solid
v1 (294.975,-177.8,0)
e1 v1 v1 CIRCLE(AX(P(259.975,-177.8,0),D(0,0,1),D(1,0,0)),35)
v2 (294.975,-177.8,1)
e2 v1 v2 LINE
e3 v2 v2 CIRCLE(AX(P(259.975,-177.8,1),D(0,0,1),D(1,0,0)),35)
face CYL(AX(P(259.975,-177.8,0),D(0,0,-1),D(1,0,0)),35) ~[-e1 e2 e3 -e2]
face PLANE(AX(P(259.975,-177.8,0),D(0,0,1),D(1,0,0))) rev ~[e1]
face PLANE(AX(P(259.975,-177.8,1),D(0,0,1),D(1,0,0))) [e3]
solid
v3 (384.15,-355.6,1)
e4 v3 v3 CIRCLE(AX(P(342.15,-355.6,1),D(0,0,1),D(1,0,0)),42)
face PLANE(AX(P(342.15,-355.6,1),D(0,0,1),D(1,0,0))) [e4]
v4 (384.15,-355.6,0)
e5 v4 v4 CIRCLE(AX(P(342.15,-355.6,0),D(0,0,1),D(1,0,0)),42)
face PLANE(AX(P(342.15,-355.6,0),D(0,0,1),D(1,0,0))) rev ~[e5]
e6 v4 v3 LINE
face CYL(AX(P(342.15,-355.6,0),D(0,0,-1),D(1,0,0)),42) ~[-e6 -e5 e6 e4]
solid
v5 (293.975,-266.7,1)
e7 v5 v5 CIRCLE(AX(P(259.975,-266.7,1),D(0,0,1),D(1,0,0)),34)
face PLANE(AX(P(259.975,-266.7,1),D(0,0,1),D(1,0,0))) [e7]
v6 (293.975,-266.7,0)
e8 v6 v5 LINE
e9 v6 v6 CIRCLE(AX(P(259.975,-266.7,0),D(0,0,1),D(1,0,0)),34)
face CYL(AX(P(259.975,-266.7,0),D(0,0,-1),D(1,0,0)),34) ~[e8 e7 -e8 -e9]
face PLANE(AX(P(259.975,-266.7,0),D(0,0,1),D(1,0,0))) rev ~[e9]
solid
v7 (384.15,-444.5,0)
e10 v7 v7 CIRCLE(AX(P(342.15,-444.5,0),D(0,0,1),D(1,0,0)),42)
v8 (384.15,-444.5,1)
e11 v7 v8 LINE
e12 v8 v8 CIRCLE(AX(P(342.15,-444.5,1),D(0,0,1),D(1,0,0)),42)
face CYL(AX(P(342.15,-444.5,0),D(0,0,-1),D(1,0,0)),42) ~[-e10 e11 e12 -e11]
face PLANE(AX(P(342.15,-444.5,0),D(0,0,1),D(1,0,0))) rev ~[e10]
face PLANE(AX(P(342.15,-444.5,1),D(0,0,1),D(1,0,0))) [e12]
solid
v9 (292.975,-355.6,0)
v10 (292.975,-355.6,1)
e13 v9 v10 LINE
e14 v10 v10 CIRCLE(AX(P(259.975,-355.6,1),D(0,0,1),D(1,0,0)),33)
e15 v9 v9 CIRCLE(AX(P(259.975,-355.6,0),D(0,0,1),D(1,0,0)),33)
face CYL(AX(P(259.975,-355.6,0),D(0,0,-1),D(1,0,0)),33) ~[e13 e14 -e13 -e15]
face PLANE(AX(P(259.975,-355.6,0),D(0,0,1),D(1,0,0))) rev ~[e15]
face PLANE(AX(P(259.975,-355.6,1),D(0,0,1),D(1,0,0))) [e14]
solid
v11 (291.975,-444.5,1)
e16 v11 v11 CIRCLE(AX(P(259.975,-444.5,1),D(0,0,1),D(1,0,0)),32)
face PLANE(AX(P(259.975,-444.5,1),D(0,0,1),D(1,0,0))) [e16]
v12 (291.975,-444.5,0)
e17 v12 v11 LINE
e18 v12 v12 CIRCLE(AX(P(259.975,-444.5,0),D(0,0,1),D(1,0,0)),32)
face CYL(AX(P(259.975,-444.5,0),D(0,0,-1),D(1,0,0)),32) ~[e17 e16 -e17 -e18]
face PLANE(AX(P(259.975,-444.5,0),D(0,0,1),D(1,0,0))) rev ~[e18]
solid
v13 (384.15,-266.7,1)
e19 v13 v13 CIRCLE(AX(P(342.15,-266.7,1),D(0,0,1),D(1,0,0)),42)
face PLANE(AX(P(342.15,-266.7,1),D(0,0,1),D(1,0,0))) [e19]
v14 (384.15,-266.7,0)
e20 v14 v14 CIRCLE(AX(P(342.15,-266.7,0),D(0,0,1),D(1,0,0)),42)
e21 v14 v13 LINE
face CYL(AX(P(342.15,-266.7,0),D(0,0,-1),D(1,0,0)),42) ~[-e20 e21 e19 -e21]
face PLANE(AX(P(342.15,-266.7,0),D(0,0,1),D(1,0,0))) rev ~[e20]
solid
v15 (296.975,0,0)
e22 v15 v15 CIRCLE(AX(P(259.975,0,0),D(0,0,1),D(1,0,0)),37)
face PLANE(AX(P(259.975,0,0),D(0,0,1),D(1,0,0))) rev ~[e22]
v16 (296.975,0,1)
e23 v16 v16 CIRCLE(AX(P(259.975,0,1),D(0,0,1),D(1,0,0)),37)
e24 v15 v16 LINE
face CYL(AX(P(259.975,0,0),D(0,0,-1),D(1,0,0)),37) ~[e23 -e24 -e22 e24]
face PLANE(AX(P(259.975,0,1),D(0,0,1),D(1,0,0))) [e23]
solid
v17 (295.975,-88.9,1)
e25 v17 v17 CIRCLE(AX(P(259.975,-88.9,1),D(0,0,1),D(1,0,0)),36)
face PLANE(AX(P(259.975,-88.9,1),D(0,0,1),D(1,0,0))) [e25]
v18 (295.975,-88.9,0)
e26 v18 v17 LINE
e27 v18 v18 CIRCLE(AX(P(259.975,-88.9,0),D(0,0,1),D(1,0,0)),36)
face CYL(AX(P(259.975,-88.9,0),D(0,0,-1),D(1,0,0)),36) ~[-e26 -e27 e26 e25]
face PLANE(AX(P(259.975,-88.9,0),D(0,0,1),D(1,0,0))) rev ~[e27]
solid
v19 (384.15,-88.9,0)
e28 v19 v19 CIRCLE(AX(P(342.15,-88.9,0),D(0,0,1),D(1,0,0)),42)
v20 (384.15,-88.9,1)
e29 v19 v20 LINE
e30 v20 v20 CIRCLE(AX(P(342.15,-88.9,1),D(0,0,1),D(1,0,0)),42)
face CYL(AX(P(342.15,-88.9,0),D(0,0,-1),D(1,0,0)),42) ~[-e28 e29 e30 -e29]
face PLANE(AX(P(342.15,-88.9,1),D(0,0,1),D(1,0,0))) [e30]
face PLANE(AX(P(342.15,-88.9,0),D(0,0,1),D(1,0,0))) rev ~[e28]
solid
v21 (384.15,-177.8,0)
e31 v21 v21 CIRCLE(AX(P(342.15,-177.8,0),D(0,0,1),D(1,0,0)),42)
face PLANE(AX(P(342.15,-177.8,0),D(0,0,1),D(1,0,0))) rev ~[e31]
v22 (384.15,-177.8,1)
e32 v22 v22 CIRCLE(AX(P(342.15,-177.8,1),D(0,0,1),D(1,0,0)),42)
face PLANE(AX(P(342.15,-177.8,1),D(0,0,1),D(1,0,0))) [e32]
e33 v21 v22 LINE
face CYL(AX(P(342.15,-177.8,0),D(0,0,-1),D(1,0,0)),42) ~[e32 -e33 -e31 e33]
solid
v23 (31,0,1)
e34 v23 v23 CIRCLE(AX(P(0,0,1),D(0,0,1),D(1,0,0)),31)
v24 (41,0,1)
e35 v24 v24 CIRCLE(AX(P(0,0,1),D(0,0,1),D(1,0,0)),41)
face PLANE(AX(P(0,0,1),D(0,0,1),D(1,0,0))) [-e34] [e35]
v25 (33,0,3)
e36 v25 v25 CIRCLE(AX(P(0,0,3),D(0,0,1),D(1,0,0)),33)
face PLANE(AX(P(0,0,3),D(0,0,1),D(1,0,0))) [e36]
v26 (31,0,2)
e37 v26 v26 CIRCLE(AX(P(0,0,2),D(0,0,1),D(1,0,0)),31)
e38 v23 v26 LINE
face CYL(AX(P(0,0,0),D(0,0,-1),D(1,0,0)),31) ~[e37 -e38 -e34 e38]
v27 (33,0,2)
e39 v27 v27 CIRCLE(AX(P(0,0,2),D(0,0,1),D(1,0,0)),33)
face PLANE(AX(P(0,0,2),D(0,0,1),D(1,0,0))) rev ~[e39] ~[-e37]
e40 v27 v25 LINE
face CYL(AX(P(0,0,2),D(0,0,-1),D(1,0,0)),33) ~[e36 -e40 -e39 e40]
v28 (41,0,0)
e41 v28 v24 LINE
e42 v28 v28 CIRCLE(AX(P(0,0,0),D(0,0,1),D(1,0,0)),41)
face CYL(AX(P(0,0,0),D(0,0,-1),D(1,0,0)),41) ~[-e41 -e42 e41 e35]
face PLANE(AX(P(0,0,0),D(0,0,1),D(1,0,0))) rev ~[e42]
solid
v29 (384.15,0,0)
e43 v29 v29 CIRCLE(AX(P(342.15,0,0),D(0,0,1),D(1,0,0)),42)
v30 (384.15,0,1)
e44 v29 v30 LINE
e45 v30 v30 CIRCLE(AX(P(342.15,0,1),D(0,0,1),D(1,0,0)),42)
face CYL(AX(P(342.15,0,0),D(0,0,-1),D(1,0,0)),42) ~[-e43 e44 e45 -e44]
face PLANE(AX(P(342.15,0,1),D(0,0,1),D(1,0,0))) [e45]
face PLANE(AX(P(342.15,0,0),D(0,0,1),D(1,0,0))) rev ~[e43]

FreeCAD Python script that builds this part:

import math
import FreeCAD as App
import Part
import Sketcher
Q = App.Units.Quantity

doc = App.newDocument("Part")
params = doc.addObject("Spreadsheet::Sheet", "Params")
for row, (alias, value) in enumerate([
    ("sketch1_radius", "42 mm"),
    ("sketch1_radius2", "37 mm"),
    ("sketch1_radius3", "36 mm"),
    ("sketch1_radius4", "35 mm"),
    ("sketch1_radius5", "34 mm"),
    ("pad1_length", "1 mm"),
    ("sketch2_diameter", "74 mm"),
    ("sketch2_diameter2", "84 mm"),
    ("sketch2_diameter3", "72 mm"),
    ("sketch2_diameter4", "70 mm"),
    ("sketch2_diameter5", "68 mm"),
    ("pad2_length", "1 mm"),
    ("sketch3_diameter", "84 mm"),
    ("sketch3_diameter2", "74 mm"),
    ("sketch3_diameter3", "72 mm"),
    ("sketch3_diameter4", "70 mm"),
    ("sketch3_diameter5", "68 mm"),
    ("pad3_length", "1 mm"),
    ("sketch4_diameter", "82 mm"),
    ("sketch4_diameter2", "62 mm"),
    ("pad4_length", "1 mm"),
    ("sketch5_diameter", "62 mm"),
    ("pad5_length", "2 mm"),
    ("sketch6_diameter", "66 mm"),
    ("pad6_length", "1 mm"),
], start=1):
    params.set(f"A{row}", alias)
    params.set(f"B{row}", "=" + value)
    params.setAlias(f"B{row}", alias)

body = doc.addObject("PartDesign::Body", "Body")
body.AllowCompound = True

# Sketch on XY plane
sketch1 = body.newObject("Sketcher::SketchObject", "Sketch")
sketch1.AttachmentSupport = (doc.getObject("XY_Plane"), [""])
sketch1.MapMode = "FlatFace"
sketch1.addGeometry(Part.LineSegment(App.Vector(2, -37, 0), App.Vector(2, -42, 0)), False)
sketch1.addGeometry(Part.ArcOfCircle(Part.Circle(App.Vector(0, 0, 0), App.Vector(0, 0, 1), 42), math.radians(-87), math.radians(267)), False)
sketch1.addGeometry(Part.LineSegment(App.Vector(-2, -42, 0), App.Vector(-2, -37, 0)), False)
sketch1.addGeometry(Part.ArcOfCircle(Part.Circle(App.Vector(0, 0, 0), App.Vector(0, 0, 1), 37), math.radians(-86), math.radians(266)), False)
sketch1.addGeometry(Part.LineSegment(App.Vector(92, -37, 0), App.Vector(92, -42, 0)), False)
sketch1.addGeometry(Part.ArcOfCircle(Part.Circle(App.Vector(89, 0, 0), App.Vector(0, 0, 1), 42), math.radians(-85), math.radians(265)), False)
sketch1.addGeometry(Part.LineSegment(App.Vector(85, -42, 0), App.Vector(85, -37, 0)), False)
sketch1.addGeometry(Part.ArcOfCircle(Part.Circle(App.Vector(89, 0, 0), App.Vector(0, 0, 1), 37), math.radians(-85), math.radians(265)), False)
sketch1.addGeometry(Part.LineSegment(App.Vector(182, -37, 0), App.Vector(182, -42, 0)), False)
sketch1.addGeometry(Part.ArcOfCircle(Part.Circle(App.Vector(178, 0, 0), App.Vector(0, 0, 1), 42), math.radians(-84), math.radians(264)), False)
sketch1.addGeometry(Part.LineSegment(App.Vector(173, -42, 0), App.Vector(173, -37, 0)), False)
sketch1.addGeometry(Part.ArcOfCircle(Part.Circle(App.Vector(178, 0, 0), App.Vector(0, 0, 1), 37), math.radians(-83), math.radians(263)), False)
sketch1.addGeometry(Part.LineSegment(App.Vector(92, -125, 0), App.Vector(92, -131, 0)), False)
sketch1.addGeometry(Part.ArcOfCircle(Part.Circle(App.Vector(89, -89, 0), App.Vector(0, 0, 1), 42), math.radians(-85), math.radians(265)), False)
sketch1.addGeometry(Part.LineSegment(App.Vector(85, -131, 0), App.Vector(85, -125, 0)), False)
sketch1.addGeometry(Part.ArcOfCircle(Part.Circle(App.Vector(89, -89, 0), App.Vector(0, 0, 1), 36), math.radians(-84), math.radians(264)), False)
sketch1.addGeometry(Part.LineSegment(App.Vector(182, -125, 0), App.Vector(182, -131, 0)), False)
sketch1.addGeometry(Part.ArcOfCircle(Part.Circle(App.Vector(178, -89, 0), App.Vector(0, 0, 1), 42), math.radians(-84), math.radians(264)), False)
sketch1.addGeometry(Part.LineSegment(App.Vector(173, -131, 0), App.Vector(173, -125, 0)), False)
sketch1.addGeometry(Part.ArcOfCircle(Part.Circle(App.Vector(178, -89, 0), App.Vector(0, 0, 1), 36), math.radians(-83), math.radians(263)), False)
sketch1.addGeometry(Part.LineSegment(App.Vector(2, -125, 0), App.Vector(2, -131, 0)), False)
sketch1.addGeometry(Part.ArcOfCircle(Part.Circle(App.Vector(0, -89, 0), App.Vector(0, 0, 1), 42), math.radians(-87), math.radians(267)), False)
sketch1.addGeometry(Part.LineSegment(App.Vector(-2, -131, 0), App.Vector(-2, -125, 0)), False)
sketch1.addGeometry(Part.ArcOfCircle(Part.Circle(App.Vector(0, -89, 0), App.Vector(0, 0, 1), 36), math.radians(-86), math.radians(266)), False)
sketch1.addGeometry(Part.LineSegment(App.Vector(92, -213, 0), App.Vector(92, -220, 0)), False)
sketch1.addGeometry(Part.ArcOfCircle(Part.Circle(App.Vector(89, -178, 0), App.Vector(0, 0, 1), 42), math.radians(-85), math.radians(265)), False)
sketch1.addGeometry(Part.LineSegment(App.Vector(85, -220, 0), App.Vector(85, -213, 0)), False)
sketch1.addGeometry(Part.ArcOfCircle(Part.Circle(App.Vector(89, -178, 0), App.Vector(0, 0, 1), 35), math.radians(-84), math.radians(264)), False)
sketch1.addGeometry(Part.LineSegment(App.Vector(182, -213, 0), App.Vector(182, -220, 0)), False)
sketch1.addGeometry(Part.ArcOfCircle(Part.Circle(App.Vector(178, -178, 0), App.Vector(0, 0, 1), 42), math.radians(-84), math.radians(264)), False)
sketch1.addGeometry(Part.LineSegment(App.Vector(173, -220, 0), App.Vector(173, -213, 0)), False)
sketch1.addGeometry(Part.ArcOfCircle(Part.Circle(App.Vector(178, -178, 0), App.Vector(0, 0, 1), 35), math.radians(-83), math.radians(263)), False)
sketch1.addGeometry(Part.LineSegment(App.Vector(2, -213, 0), App.Vector(2, -220, 0)), False)
sketch1.addGeometry(Part.ArcOfCircle(Part.Circle(App.Vector(0, -178, 0), App.Vector(0, 0, 1), 42), math.radians(-87), math.radians(267)), False)
sketch1.addGeometry(Part.LineSegment(App.Vector(-2, -220, 0), App.Vector(-2, -213, 0)), False)
sketch1.addGeometry(Part.ArcOfCircle(Part.Circle(App.Vector(0, -178, 0), App.Vector(0, 0, 1), 35), math.radians(-86), math.radians(266)), False)
sketch1.addGeometry(Part.LineSegment(App.Vector(92, -301, 0), App.Vector(92, -309, 0)), False)
sketch1.addGeometry(Part.ArcOfCircle(Part.Circle(App.Vector(89, -267, 0), App.Vector(0, 0, 1), 42), math.radians(-85), math.radians(265)), False)
sketch1.addGeometry(Part.LineSegment(App.Vector(85, -309, 0), App.Vector(85, -301, 0)), False)
sketch1.addGeometry(Part.ArcOfCircle(Part.Circle(App.Vector(89, -267, 0), App.Vector(0, 0, 1), 34), math.radians(-84), math.radians(264)), False)
sketch1.addGeometry(Part.LineSegment(App.Vector(182, -300, 0), App.Vector(182, -308, 0)), False)
sketch1.addGeometry(Part.ArcOfCircle(Part.Circle(App.Vector(178, -267, 0), App.Vector(0, 0, 1), 42), math.radians(-84), math.radians(264)), False)
sketch1.addGeometry(Part.LineSegment(App.Vector(173, -308, 0), App.Vector(173, -300, 0)), False)
sketch1.addGeometry(Part.ArcOfCircle(Part.Circle(App.Vector(178, -267, 0), App.Vector(0, 0, 1), 34), math.radians(-82), math.radians(262)), False)
sketch1.addGeometry(Part.LineSegment(App.Vector(2, -301, 0), App.Vector(2, -309, 0)), False)
sketch1.addGeometry(Part.ArcOfCircle(Part.Circle(App.Vector(0, -267, 0), App.Vector(0, 0, 1), 42), math.radians(-87), math.radians(267)), False)
sketch1.addGeometry(Part.LineSegment(App.Vector(-2, -309, 0), App.Vector(-2, -301, 0)), False)
sketch1.addGeometry(Part.ArcOfCircle(Part.Circle(App.Vector(0, -267, 0), App.Vector(0, 0, 1), 34), math.radians(-86), math.radians(266)), False)
sketch1.addGeometry(Part.LineSegment(App.Vector(92, -388, 0), App.Vector(92, -397, 0)), False)
sketch1.addGeometry(Part.ArcOfCircle(Part.Circle(App.Vector(89, -356, 0), App.Vector(0, 0, 1), 42), math.radians(-85), math.radians(265)), False)
sketch1.addGeometry(Part.LineSegment(App.Vector(85, -397, 0), App.Vector(85, -388, 0)), False)
sketch1.addGeometry(Part.ArcOfCircle(Part.Circle(App.Vector(89, -356, 0), App.Vector(0, 0, 1), 33), math.radians(-84), math.radians(264)), False)
sketch1.addGeometry(Part.LineSegment(App.Vector(182, -388, 0), App.Vector(182, -397, 0)), False)
sketch1.addGeometry(Part.ArcOfCircle(Part.Circle(App.Vector(178, -356, 0), App.Vector(0, 0, 1), 42), math.radians(-84), math.radians(264)), False)
sketch1.addGeometry(Part.LineSegment(App.Vector(173, -397, 0), App.Vector(173, -388, 0)), False)
sketch1.addGeometry(Part.ArcOfCircle(Part.Circle(App.Vector(178, -356, 0), App.Vector(0, 0, 1), 33), math.radians(-82), math.radians(262)), False)
sketch1.addGeometry(Part.LineSegment(App.Vector(2, -389, 0), App.Vector(2, -398, 0)), False)
sketch1.addGeometry(Part.ArcOfCircle(Part.Circle(App.Vector(0, -356, 0), App.Vector(0, 0, 1), 42), math.radians(-87), math.radians(267)), False)
sketch1.addGeometry(Part.LineSegment(App.Vector(-2, -398, 0), App.Vector(-2, -389, 0)), False)
sketch1.addGeometry(Part.ArcOfCircle(Part.Circle(App.Vector(0, -356, 0), App.Vector(0, 0, 1), 33), math.radians(-86), math.radians(266)), False)
sketch1.addGeometry(Part.LineSegment(App.Vector(92, -476, 0), App.Vector(92, -486, 0)), False)
sketch1.addGeometry(Part.ArcOfCircle(Part.Circle(App.Vector(89, -445, 0), App.Vector(0, 0, 1), 42), math.radians(-85), math.radians(265)), False)
sketch1.addGeometry(Part.LineSegment(App.Vector(85, -486, 0), App.Vector(85, -476, 0)), False)
sketch1.addGeometry(Part.ArcOfCircle(Part.Circle(App.Vector(89, -445, 0), App.Vector(0, 0, 1), 32), math.radians(-84), math.radians(264)), False)
sketch1.addGeometry(Part.LineSegment(App.Vector(182, -476, 0), App.Vector(182, -486, 0)), False)
sketch1.addGeometry(Part.ArcOfCircle(Part.Circle(App.Vector(178, -445, 0), App.Vector(0, 0, 1), 42), math.radians(-84), math.radians(264)), False)
sketch1.addGeometry(Part.LineSegment(App.Vector(173, -486, 0), App.Vector(173, -476, 0)), False)
sketch1.addGeometry(Part.ArcOfCircle(Part.Circle(App.Vector(178, -445, 0), App.Vector(0, 0, 1), 32), math.radians(-82), math.radians(262)), False)
sketch1.addGeometry(Part.LineSegment(App.Vector(2, -476, 0), App.Vector(2, -486, 0)), False)
sketch1.addGeometry(Part.ArcOfCircle(Part.Circle(App.Vector(0, -444, 0), App.Vector(0, 0, 1), 42), math.radians(-87), math.radians(267)), False)
sketch1.addGeometry(Part.LineSegment(App.Vector(-2, -486, 0), App.Vector(-2, -476, 0)), False)
sketch1.addGeometry(Part.ArcOfCircle(Part.Circle(App.Vector(0, -444, 0), App.Vector(0, 0, 1), 32), math.radians(-86), math.radians(266)), False)
sketch1.addConstraint(Sketcher.Constraint("Coincident", 0, 2, 1, 1))
sketch1.addConstraint(Sketcher.Constraint("Coincident", 1, 2, 2, 1))
sketch1.addConstraint(Sketcher.Constraint("Coincident", 2, 2, 3, 2))
sketch1.addConstraint(Sketcher.Constraint("Coincident", 3, 1, 0, 1))
sketch1.addConstraint(Sketcher.Constraint("Coincident", 4, 2, 5, 1))
sketch1.addConstraint(Sketcher.Constraint("Coincident", 5, 2, 6, 1))
sketch1.addConstraint(Sketcher.Constraint("Coincident", 6, 2, 7, 2))
sketch1.addConstraint(Sketcher.Constraint("Coincident", 7, 1, 4, 1))
sketch1.addConstraint(Sketcher.Constraint("Coincident", 8, 2, 9, 1))
sketch1.addConstraint(Sketcher.Constraint("Coincident", 9, 2, 10, 1))
sketch1.addConstraint(Sketcher.Constraint("Coincident", 10, 2, 11, 2))
sketch1.addConstraint(Sketcher.Constraint("Coincident", 11, 1, 8, 1))
sketch1.addConstraint(Sketcher.Constraint("Coincident", 12, 2, 13, 1))
sketch1.addConstraint(Sketcher.Constraint("Coincident", 13, 2, 14, 1))
sketch1.addConstraint(Sketcher.Constraint("Coincident", 14, 2, 15, 2))
sketch1.addConstraint(Sketcher.Constraint("Coincident", 15, 1, 12, 1))
sketch1.addConstraint(Sketcher.Constraint("Coincident", 16, 2, 17, 1))
sketch1.addConstraint(Sketcher.Constraint("Coincident", 17, 2, 18, 1))
sketch1.addConstraint(Sketcher.Constraint("Coincident", 18, 2, 19, 2))
sketch1.addConstraint(Sketcher.Constraint("Coincident", 19, 1, 16, 1))
sketch1.addConstraint(Sketcher.Constraint("Coincident", 20, 2, 21, 1))
sketch1.addConstraint(Sketcher.Constraint("Coincident", 21, 2, 22, 1))
sketch1.addConstraint(Sketcher.Constraint("Coincident", 22, 2, 23, 2))
sketch1.addConstraint(Sketcher.Constraint("Coincident", 23, 1, 20, 1))
sketch1.addConstraint(Sketcher.Constraint("Coincident", 24, 2, 25, 1))
sketch1.addConstraint(Sketcher.Constraint("Coincident", 25, 2, 26, 1))
sketch1.addConstraint(Sketcher.Constraint("Coincident", 26, 2, 27, 2))
sketch1.addConstraint(Sketcher.Constraint("Coincident", 27, 1, 24, 1))
sketch1.addConstraint(Sketcher.Constraint("Coincident", 28, 2, 29, 1))
sketch1.addConstraint(Sketcher.Constraint("Coincident", 29, 2, 30, 1))
sketch1.addConstraint(Sketcher.Constraint("Coincident", 30, 2, 31, 2))
sketch1.addConstraint(Sketcher.Constraint("Coincident", 31, 1, 28, 1))
sketch1.addConstraint(Sketcher.Constraint("Coincident", 32, 2, 33, 1))
sketch1.addConstraint(Sketcher.Constraint("Coincident", 33, 2, 34, 1))
sketch1.addConstraint(Sketcher.Constraint("Coincident", 34, 2, 35, 2))
sketch1.addConstraint(Sketcher.Constraint("Coincident", 35, 1, 32, 1))
sketch1.addConstraint(Sketcher.Constraint("Coincident", 36, 2, 37, 1))
sketch1.addConstraint(Sketcher.Constraint("Coincident", 37, 2, 38, 1))
sketch1.addConstraint(Sketcher.Constraint("Coincident", 38, 2, 39, 2))
sketch1.addConstraint(Sketcher.Constraint("Coincident", 39, 1, 36, 1))
sketch1.addConstraint(Sketcher.Constraint("Coincident", 40, 2, 41, 1))
sketch1.addConstraint(Sketcher.Constraint("Coincident", 41, 2, 42, 1))
sketch1.addConstraint(Sketcher.Constraint("Coincident", 42, 2, 43, 2))
sketch1.addConstraint(Sketcher.Constraint("Coincident", 43, 1, 40, 1))
sketch1.addConstraint(Sketcher.Constraint("Coincident", 44, 2, 45, 1))
sketch1.addConstraint(Sketcher.Constraint("Coincident", 45, 2, 46, 1))
sketch1.addConstraint(Sketcher.Constraint("Coincident", 46, 2, 47, 2))
sketch1.addConstraint(Sketcher.Constraint("Coincident", 47, 1, 44, 1))
sketch1.addConstraint(Sketcher.Constraint("Coincident", 48, 2, 49, 1))
sketch1.addConstraint(Sketcher.Constraint("Coincident", 49, 2, 50, 1))
sketch1.addConstraint(Sketcher.Constraint("Coincident", 50, 2, 51, 2))
sketch1.addConstraint(Sketcher.Constraint("Coincident", 51, 1, 48, 1))
sketch1.addConstraint(Sketcher.Constraint("Coincident", 52, 2, 53, 1))
sketch1.addConstraint(Sketcher.Constraint("Coincident", 53, 2, 54, 1))
sketch1.addConstraint(Sketcher.Constraint("Coincident", 54, 2, 55, 2))
sketch1.addConstraint(Sketcher.Constraint("Coincident", 55, 1, 52, 1))
sketch1.addConstraint(Sketcher.Constraint("Coincident", 56, 2, 57, 1))
sketch1.addConstraint(Sketcher.Constraint("Coincident", 57, 2, 58, 1))
sketch1.addConstraint(Sketcher.Constraint("Coincident", 58, 2, 59, 2))
sketch1.addConstraint(Sketcher.Constraint("Coincident", 59, 1, 56, 1))
sketch1.addConstraint(Sketcher.Constraint("Coincident", 60, 2, 61, 1))
sketch1.addConstraint(Sketcher.Constraint("Coincident", 61, 2, 62, 1))
sketch1.addConstraint(Sketcher.Constraint("Coincident", 62, 2, 63, 2))
sketch1.addConstraint(Sketcher.Constraint("Coincident", 63, 1, 60, 1))
sketch1.addConstraint(Sketcher.Constraint("Coincident", 64, 2, 65, 1))
sketch1.addConstraint(Sketcher.Constraint("Coincident", 65, 2, 66, 1))
sketch1.addConstraint(Sketcher.Constraint("Coincident", 66, 2, 67, 2))
sketch1.addConstraint(Sketcher.Constraint("Coincident", 67, 1, 64, 1))
sketch1.addConstraint(Sketcher.Constraint("Coincident", 68, 2, 69, 1))
sketch1.addConstraint(Sketcher.Constraint("Coincident", 69, 2, 70, 1))
sketch1.addConstraint(Sketcher.Constraint("Coincident", 70, 2, 71, 2))
sketch1.addConstraint(Sketcher.Constraint("Coincident", 71, 1, 68, 1))
sketch1.addConstraint(Sketcher.Constraint("Vertical", 0))
sketch1.addConstraint(Sketcher.Constraint("Vertical", 2))
sketch1.addConstraint(Sketcher.Constraint("Vertical", 4))
sketch1.addConstraint(Sketcher.Constraint("Vertical", 6))
sketch1.addConstraint(Sketcher.Constraint("Vertical", 8))
sketch1.addConstraint(Sketcher.Constraint("Vertical", 10))
sketch1.addConstraint(Sketcher.Constraint("Vertical", 12))
sketch1.addConstraint(Sketcher.Constraint("Vertical", 14))
sketch1.addConstraint(Sketcher.Constraint("Vertical", 16))
sketch1.addConstraint(Sketcher.Constraint("Vertical", 18))
sketch1.addConstraint(Sketcher.Constraint("Vertical", 20))
sketch1.addConstraint(Sketcher.Constraint("Vertical", 22))
sketch1.addConstraint(Sketcher.Constraint("Vertical", 24))
sketch1.addConstraint(Sketcher.Constraint("Vertical", 26))
sketch1.addConstraint(Sketcher.Constraint("Vertical", 28))
sketch1.addConstraint(Sketcher.Constraint("Vertical", 30))
sketch1.addConstraint(Sketcher.Constraint("Vertical", 32))
sketch1.addConstraint(Sketcher.Constraint("Vertical", 34))
sketch1.addConstraint(Sketcher.Constraint("Vertical", 36))
sketch1.addConstraint(Sketcher.Constraint("Vertical", 38))
sketch1.addConstraint(Sketcher.Constraint("Vertical", 40))
sketch1.addConstraint(Sketcher.Constraint("Vertical", 42))
sketch1.addConstraint(Sketcher.Constraint("Vertical", 44))
sketch1.addConstraint(Sketcher.Constraint("Vertical", 46))
sketch1.addConstraint(Sketcher.Constraint("Vertical", 48))
sketch1.addConstraint(Sketcher.Constraint("Vertical", 50))
sketch1.addConstraint(Sketcher.Constraint("Vertical", 52))
sketch1.addConstraint(Sketcher.Constraint("Vertical", 54))
sketch1.addConstraint(Sketcher.Constraint("Vertical", 56))
sketch1.addConstraint(Sketcher.Constraint("Vertical", 58))
sketch1.addConstraint(Sketcher.Constraint("Vertical", 60))
sketch1.addConstraint(Sketcher.Constraint("Vertical", 62))
sketch1.addConstraint(Sketcher.Constraint("Vertical", 64))
sketch1.addConstraint(Sketcher.Constraint("Vertical", 66))
sketch1.addConstraint(Sketcher.Constraint("Vertical", 68))
sketch1.addConstraint(Sketcher.Constraint("Vertical", 70))
sketch1.addConstraint(Sketcher.Constraint("Coincident", 1, 3, -1, 1))
sketch1.addConstraint(Sketcher.Constraint("Coincident", 3, 3, -1, 1))
sketch1.addConstraint(Sketcher.Constraint("Coincident", 7, 3, 5, 3))
sketch1.addConstraint(Sketcher.Constraint("Coincident", 11, 3, 9, 3))
sketch1.addConstraint(Sketcher.Constraint("Coincident", 15, 3, 13, 3))
sketch1.addConstraint(Sketcher.Constraint("Coincident", 19, 3, 17, 3))
sketch1.addConstraint(Sketcher.Constraint("Coincident", 23, 3, 21, 3))
sketch1.addConstraint(Sketcher.Constraint("Coincident", 27, 3, 25, 3))
sketch1.addConstraint(Sketcher.Constraint("Coincident", 31, 3, 29, 3))
sketch1.addConstraint(Sketcher.Constraint("Coincident", 35, 3, 33, 3))
sketch1.addConstraint(Sketcher.Constraint("Coincident", 39, 3, 37, 3))
sketch1.addConstraint(Sketcher.Constraint("Coincident", 43, 3, 41, 3))
sketch1.addConstraint(Sketcher.Constraint("Coincident", 47, 3, 45, 3))
sketch1.addConstraint(Sketcher.Constraint("Coincident", 51, 3, 49, 3))
sketch1.addConstraint(Sketcher.Constraint("Coincident", 55, 3, 53, 3))
sketch1.addConstraint(Sketcher.Constraint("Coincident", 59, 3, 57, 3))
sketch1.addConstraint(Sketcher.Constraint("Coincident", 63, 3, 61, 3))
sketch1.addConstraint(Sketcher.Constraint("Coincident", 67, 3, 65, 3))
sketch1.addConstraint(Sketcher.Constraint("Coincident", 71, 3, 69, 3))
sketch1.addConstraint(Sketcher.Constraint("Equal", 1, 5))
sketch1.addConstraint(Sketcher.Constraint("Equal", 3, 7))
sketch1.addConstraint(Sketcher.Constraint("Equal", 5, 9))
sketch1.addConstraint(Sketcher.Constraint("Equal", 7, 11))
sketch1.addConstraint(Sketcher.Constraint("Equal", 9, 13))
sketch1.addConstraint(Sketcher.Constraint("Equal", 13, 17))
sketch1.addConstraint(Sketcher.Constraint("Equal", 15, 19))
sketch1.addConstraint(Sketcher.Constraint("Equal", 17, 21))
sketch1.addConstraint(Sketcher.Constraint("Equal", 19, 23))
sketch1.addConstraint(Sketcher.Constraint("Equal", 21, 25))
sketch1.addConstraint(Sketcher.Constraint("Equal", 25, 29))
sketch1.addConstraint(Sketcher.Constraint("Equal", 27, 31))
sketch1.addConstraint(Sketcher.Constraint("Equal", 29, 33))
sketch1.addConstraint(Sketcher.Constraint("Equal", 31, 35))
sketch1.addConstraint(Sketcher.Constraint("Equal", 33, 37))
sketch1.addConstraint(Sketcher.Constraint("Equal", 37, 41))
sketch1.addConstraint(Sketcher.Constraint("Equal", 39, 43))
sketch1.addConstraint(Sketcher.Constraint("Equal", 41, 45))
sketch1.addConstraint(Sketcher.Constraint("Equal", 43, 47))
sketch1.addConstraint(Sketcher.Constraint("Equal", 45, 49))
sketch1.addConstraint(Sketcher.Constraint("Equal", 49, 53))
sketch1.addConstraint(Sketcher.Constraint("Equal", 51, 55))
sketch1.addConstraint(Sketcher.Constraint("Equal", 53, 57))
sketch1.addConstraint(Sketcher.Constraint("Equal", 55, 59))
sketch1.addConstraint(Sketcher.Constraint("Equal", 57, 61))
sketch1.addConstraint(Sketcher.Constraint("Equal", 61, 65))
sketch1.addConstraint(Sketcher.Constraint("Equal", 63, 67))
sketch1.addConstraint(Sketcher.Constraint("Equal", 65, 69))
sketch1.addConstraint(Sketcher.Constraint("Equal", 67, 71))
sketch1.addConstraint(Sketcher.Constraint("Symmetric", 20, 2, 21, 2, -2))
sketch1.addConstraint(Sketcher.Constraint("Symmetric", 32, 2, 33, 2, -2))
sketch1.addConstraint(Sketcher.Constraint("Symmetric", 44, 2, 45, 2, -2))
sketch1.addConstraint(Sketcher.Constraint("Symmetric", 56, 2, 57, 2, -2))
sketch1.addConstraint(Sketcher.Constraint("Symmetric", 68, 2, 69, 2, -2))
sketch1.addConstraint(Sketcher.Constraint("PointOnObject", 5, 3, -1))
sketch1.addConstraint(Sketcher.Constraint("PointOnObject", 9, 3, -1))
sketch1.addConstraint(Sketcher.Constraint("Horizontal", 15, 3, 17, 3))
sketch1.addConstraint(Sketcher.Constraint("Horizontal", 19, 3, 21, 3))
sketch1.addConstraint(Sketcher.Constraint("Horizontal", 27, 3, 29, 3))
sketch1.addConstraint(Sketcher.Constraint("Horizontal", 31, 3, 33, 3))
sketch1.addConstraint(Sketcher.Constraint("Horizontal", 39, 3, 41, 3))
sketch1.addConstraint(Sketcher.Constraint("Horizontal", 43, 3, 45, 3))
sketch1.addConstraint(Sketcher.Constraint("Horizontal", 51, 3, 53, 3))
sketch1.addConstraint(Sketcher.Constraint("Horizontal", 55, 3, 57, 3))
sketch1.addConstraint(Sketcher.Constraint("Horizontal", 63, 3, 65, 3))
sketch1.addConstraint(Sketcher.Constraint("Horizontal", 67, 3, 69, 3))
sketch1.addConstraint(Sketcher.Constraint("Horizontal", 0, 2, 1, 2))
sketch1.addConstraint(Sketcher.Constraint("Horizontal", 4, 2, 5, 2))
sketch1.addConstraint(Sketcher.Constraint("Horizontal", 8, 2, 9, 2))
sketch1.addConstraint(Sketcher.Constraint("Horizontal", 12, 2, 13, 2))
sketch1.addConstraint(Sketcher.Constraint("Horizontal", 16, 2, 17, 2))
sketch1.addConstraint(Sketcher.Constraint("Horizontal", 24, 2, 25, 2))
sketch1.addConstraint(Sketcher.Constraint("Horizontal", 28, 2, 29, 2))
sketch1.addConstraint(Sketcher.Constraint("Horizontal", 36, 2, 37, 2))
sketch1.addConstraint(Sketcher.Constraint("Horizontal", 40, 2, 41, 2))
sketch1.addConstraint(Sketcher.Constraint("Horizontal", 48, 2, 49, 2))
sketch1.addConstraint(Sketcher.Constraint("Horizontal", 52, 2, 53, 2))
sketch1.addConstraint(Sketcher.Constraint("Horizontal", 60, 2, 61, 2))
sketch1.addConstraint(Sketcher.Constraint("Horizontal", 64, 2, 65, 2))
sketch1.addConstraint(Sketcher.Constraint("Vertical", 7, 3, 13, 3))
sketch1.addConstraint(Sketcher.Constraint("Vertical", 11, 3, 17, 3))
sketch1.addConstraint(Sketcher.Constraint("Vertical", 15, 3, 25, 3))
sketch1.addConstraint(Sketcher.Constraint("Vertical", 19, 3, 29, 3))
sketch1.addConstraint(Sketcher.Constraint("Vertical", 27, 3, 37, 3))
sketch1.addConstraint(Sketcher.Constraint("Vertical", 31, 3, 41, 3))
sketch1.addConstraint(Sketcher.Constraint("Vertical", 39, 3, 49, 3))
sketch1.addConstraint(Sketcher.Constraint("Vertical", 43, 3, 53, 3))
sketch1.addConstraint(Sketcher.Constraint("Vertical", 51, 3, 61, 3))
sketch1.addConstraint(Sketcher.Constraint("Vertical", 55, 3, 65, 3))
sketch1.addConstraint(Sketcher.Constraint("Vertical", 7, 1, 12, 2))
sketch1.addConstraint(Sketcher.Constraint("Vertical", 11, 1, 16, 2))
sketch1.addConstraint(Sketcher.Constraint("Vertical", 3, 1, 20, 2))
sketch1.addConstraint(Sketcher.Constraint("Vertical", 15, 1, 24, 2))
sketch1.addConstraint(Sketcher.Constraint("Vertical", 19, 1, 28, 2))
sketch1.addConstraint(Sketcher.Constraint("Vertical", 23, 1, 32, 2))
sketch1.addConstraint(Sketcher.Constraint("Vertical", 27, 1, 36, 2))
sketch1.addConstraint(Sketcher.Constraint("Vertical", 31, 1, 40, 2))
sketch1.addConstraint(Sketcher.Constraint("Vertical", 35, 1, 44, 2))
sketch1.addConstraint(Sketcher.Constraint("Vertical", 39, 1, 48, 2))
sketch1.addConstraint(Sketcher.Constraint("Vertical", 43, 1, 52, 2))
sketch1.addConstraint(Sketcher.Constraint("Vertical", 47, 1, 56, 2))
sketch1.addConstraint(Sketcher.Constraint("Vertical", 51, 1, 60, 2))
sketch1.addConstraint(Sketcher.Constraint("Vertical", 55, 1, 64, 2))
sketch1.addConstraint(Sketcher.Constraint("Vertical", 59, 1, 68, 2))
sketch1.addConstraint(Sketcher.Constraint("Radius", 1, Q("42 mm")))
sketch1.addConstraint(Sketcher.Constraint("Radius", 3, Q("37 mm")))
sketch1.addConstraint(Sketcher.Constraint("Radius", 15, Q("36 mm")))
sketch1.addConstraint(Sketcher.Constraint("Radius", 27, Q("35 mm")))
sketch1.addConstraint(Sketcher.Constraint("Radius", 39, Q("34 mm")))
sketch1.addConstraint(Sketcher.Constraint("Radius", 51, Q("33 mm")))
sketch1.addConstraint(Sketcher.Constraint("Radius", 63, Q("32 mm")))
sketch1.addConstraint(Sketcher.Constraint("DistanceX", -1, 1, 5, 3, Q("88.9 mm")))
sketch1.addConstraint(Sketcher.Constraint("DistanceX", -1, 1, 9, 3, Q("177.8 mm")))
sketch1.addConstraint(Sketcher.Constraint("DistanceY", 13, 3, -1, 1, Q("88.9 mm")))
sketch1.addConstraint(Sketcher.Constraint("DistanceY", 25, 3, -1, 1, Q("177.8 mm")))
sketch1.addConstraint(Sketcher.Constraint("DistanceY", 37, 3, -1, 1, Q("266.7 mm")))
sketch1.addConstraint(Sketcher.Constraint("DistanceY", 49, 3, -1, 1, Q("355.6 mm")))
sketch1.addConstraint(Sketcher.Constraint("DistanceY", 61, 3, -1, 1, Q("444.5 mm")))
sketch1.addConstraint(Sketcher.Constraint("DistanceX", -1, 1, 0, 2, Q("2.5 mm")))
sketch1.addConstraint(Sketcher.Constraint("DistanceX", -1, 1, 4, 2, Q("92.4 mm")))
sketch1.addConstraint(Sketcher.Constraint("DistanceX", -1, 1, 8, 2, Q("182.3 mm")))
sketch1.setExpression("Constraints[211]", "Params.sketch1_radius")
sketch1.setExpression("Constraints[212]", "Params.sketch1_radius2")
sketch1.setExpression("Constraints[213]", "Params.sketch1_radius3")
sketch1.setExpression("Constraints[214]", "Params.sketch1_radius4")
sketch1.setExpression("Constraints[215]", "Params.sketch1_radius5")
pad1 = body.newObject("PartDesign::Pad", "Pad")
pad1.Profile = sketch1
pad1.setExpression("Length", "Params.pad1_length")
body2 = doc.addObject("PartDesign::Body", "Body001")
body2.AllowCompound = True

# Sketch on XY plane
sketch2 = body2.newObject("Sketcher::SketchObject", "Sketch001")
sketch2.AttachmentSupport = (doc.getObject("XY_Plane001"), [""])
sketch2.MapMode = "FlatFace"
sketch2.addGeometry(Part.Circle(App.Vector(260, 0, 0), App.Vector(0, 0, 1), 37), False)
sketch2.addGeometry(Part.Circle(App.Vector(342, 0, 0), App.Vector(0, 0, 1), 42), False)
sketch2.addGeometry(Part.Circle(App.Vector(342, -89, 0), App.Vector(0, 0, 1), 42), False)
sketch2.addGeometry(Part.Circle(App.Vector(342, -178, 0), App.Vector(0, 0, 1), 42), False)
sketch2.addGeometry(Part.Circle(App.Vector(342, -267, 0), App.Vector(0, 0, 1), 42), False)
sketch2.addGeometry(Part.Circle(App.Vector(342, -356, 0), App.Vector(0, 0, 1), 42), False)
sketch2.addGeometry(Part.Circle(App.Vector(342, -444, 0), App.Vector(0, 0, 1), 42), False)
sketch2.addGeometry(Part.Circle(App.Vector(260, -89, 0), App.Vector(0, 0, 1), 36), False)
sketch2.addGeometry(Part.Circle(App.Vector(260, -178, 0), App.Vector(0, 0, 1), 35), False)
sketch2.addGeometry(Part.Circle(App.Vector(260, -267, 0), App.Vector(0, 0, 1), 34), False)
sketch2.addGeometry(Part.Circle(App.Vector(260, -356, 0), App.Vector(0, 0, 1), 33), False)
sketch2.addGeometry(Part.Circle(App.Vector(260, -444, 0), App.Vector(0, 0, 1), 32), False)
sketch2.addConstraint(Sketcher.Constraint("Equal", 1, 2))
sketch2.addConstraint(Sketcher.Constraint("Equal", 2, 3))
sketch2.addConstraint(Sketcher.Constraint("Equal", 3, 4))
sketch2.addConstraint(Sketcher.Constraint("Equal", 4, 5))
sketch2.addConstraint(Sketcher.Constraint("Equal", 5, 6))
sketch2.addConstraint(Sketcher.Constraint("PointOnObject", 0, 3, -1))
sketch2.addConstraint(Sketcher.Constraint("PointOnObject", 1, 3, -1))
sketch2.addConstraint(Sketcher.Constraint("Horizontal", 2, 3, 7, 3))
sketch2.addConstraint(Sketcher.Constraint("Horizontal", 3, 3, 8, 3))
sketch2.addConstraint(Sketcher.Constraint("Horizontal", 4, 3, 9, 3))
sketch2.addConstraint(Sketcher.Constraint("Horizontal", 5, 3, 10, 3))
sketch2.addConstraint(Sketcher.Constraint("Horizontal", 6, 3, 11, 3))
sketch2.addConstraint(Sketcher.Constraint("Vertical", 1, 3, 2, 3))
sketch2.addConstraint(Sketcher.Constraint("Vertical", 2, 3, 3, 3))
sketch2.addConstraint(Sketcher.Constraint("Vertical", 3, 3, 4, 3))
sketch2.addConstraint(Sketcher.Constraint("Vertical", 4, 3, 5, 3))
sketch2.addConstraint(Sketcher.Constraint("Vertical", 5, 3, 6, 3))
sketch2.addConstraint(Sketcher.Constraint("Vertical", 0, 3, 7, 3))
sketch2.addConstraint(Sketcher.Constraint("Vertical", 7, 3, 8, 3))
sketch2.addConstraint(Sketcher.Constraint("Vertical", 8, 3, 9, 3))
sketch2.addConstraint(Sketcher.Constraint("Vertical", 9, 3, 10, 3))
sketch2.addConstraint(Sketcher.Constraint("Vertical", 10, 3, 11, 3))
sketch2.addConstraint(Sketcher.Constraint("Diameter", 0, Q("74 mm")))
sketch2.addConstraint(Sketcher.Constraint("Diameter", 1, Q("84 mm")))
sketch2.addConstraint(Sketcher.Constraint("Diameter", 7, Q("72 mm")))
sketch2.addConstraint(Sketcher.Constraint("Diameter", 8, Q("70 mm")))
sketch2.addConstraint(Sketcher.Constraint("Diameter", 9, Q("68 mm")))
sketch2.addConstraint(Sketcher.Constraint("Diameter", 10, Q("66 mm")))
sketch2.addConstraint(Sketcher.Constraint("Diameter", 11, Q("64 mm")))
sketch2.addConstraint(Sketcher.Constraint("DistanceY", 2, 3, -1, 1, Q("88.9 mm")))
sketch2.addConstraint(Sketcher.Constraint("DistanceY", 3, 3, -1, 1, Q("177.8 mm")))
sketch2.addConstraint(Sketcher.Constraint("DistanceY", 4, 3, -1, 1, Q("266.7 mm")))
sketch2.addConstraint(Sketcher.Constraint("DistanceY", 5, 3, -1, 1, Q("355.6 mm")))
sketch2.addConstraint(Sketcher.Constraint("DistanceY", 6, 3, -1, 1, Q("444.5 mm")))
sketch2.addConstraint(Sketcher.Constraint("DistanceX", -1, 1, 1, 3, Q("342.15 mm")))
sketch2.addConstraint(Sketcher.Constraint("DistanceX", -1, 1, 0, 3, Q("259.975 mm")))
sketch2.setExpression("Constraints[22]", "Params.sketch2_diameter")
sketch2.setExpression("Constraints[23]", "Params.sketch2_diameter2")
sketch2.setExpression("Constraints[24]", "Params.sketch2_diameter3")
sketch2.setExpression("Constraints[25]", "Params.sketch2_diameter4")
sketch2.setExpression("Constraints[26]", "Params.sketch2_diameter5")
pad2 = body2.newObject("PartDesign::Pad", "Pad001")
pad2.Profile = sketch2
pad2.setExpression("Length", "Params.pad2_length")
body3 = doc.addObject("PartDesign::Body", "Body002")
body3.AllowCompound = True

# Sketch on XY plane
sketch3 = body3.newObject("Sketcher::SketchObject", "Sketch002")
sketch3.AttachmentSupport = (doc.getObject("XY_Plane002"), [""])
sketch3.MapMode = "FlatFace"
sketch3.addGeometry(Part.Circle(App.Vector(-89, 0, 0), App.Vector(0, 0, 1), 42), False)
sketch3.addGeometry(Part.Circle(App.Vector(-89, 0, 0), App.Vector(0, 0, 1), 37), False)
sketch3.addGeometry(Part.Circle(App.Vector(-89, -89, 0), App.Vector(0, 0, 1), 42), False)
sketch3.addGeometry(Part.Circle(App.Vector(-89, -89, 0), App.Vector(0, 0, 1), 36), False)
sketch3.addGeometry(Part.Circle(App.Vector(-89, -178, 0), App.Vector(0, 0, 1), 42), False)
sketch3.addGeometry(Part.Circle(App.Vector(-89, -178, 0), App.Vector(0, 0, 1), 35), False)
sketch3.addGeometry(Part.Circle(App.Vector(-89, -267, 0), App.Vector(0, 0, 1), 42), False)
sketch3.addGeometry(Part.Circle(App.Vector(-89, -267, 0), App.Vector(0, 0, 1), 34), False)
sketch3.addGeometry(Part.Circle(App.Vector(-89, -356, 0), App.Vector(0, 0, 1), 42), False)
sketch3.addGeometry(Part.Circle(App.Vector(-89, -356, 0), App.Vector(0, 0, 1), 33), False)
sketch3.addGeometry(Part.Circle(App.Vector(-89, -444, 0), App.Vector(0, 0, 1), 42), False)
sketch3.addGeometry(Part.Circle(App.Vector(-89, -444, 0), App.Vector(0, 0, 1), 32), False)
sketch3.addConstraint(Sketcher.Constraint("Coincident", 1, 3, 0, 3))
sketch3.addConstraint(Sketcher.Constraint("Coincident", 3, 3, 2, 3))
sketch3.addConstraint(Sketcher.Constraint("Coincident", 5, 3, 4, 3))
sketch3.addConstraint(Sketcher.Constraint("Coincident", 7, 3, 6, 3))
sketch3.addConstraint(Sketcher.Constraint("Coincident", 9, 3, 8, 3))
sketch3.addConstraint(Sketcher.Constraint("Coincident", 11, 3, 10, 3))
sketch3.addConstraint(Sketcher.Constraint("Equal", 0, 2))
sketch3.addConstraint(Sketcher.Constraint("Equal", 2, 4))
sketch3.addConstraint(Sketcher.Constraint("Equal", 4, 6))
sketch3.addConstraint(Sketcher.Constraint("Equal", 6, 8))
sketch3.addConstraint(Sketcher.Constraint("Equal", 8, 10))
sketch3.addConstraint(Sketcher.Constraint("PointOnObject", 0, 3, -1))
sketch3.addConstraint(Sketcher.Constraint("Vertical", 1, 3, 2, 3))
sketch3.addConstraint(Sketcher.Constraint("Vertical", 3, 3, 4, 3))
sketch3.addConstraint(Sketcher.Constraint("Vertical", 5, 3, 6, 3))
sketch3.addConstraint(Sketcher.Constraint("Vertical", 7, 3, 8, 3))
sketch3.addConstraint(Sketcher.Constraint("Vertical", 9, 3, 10, 3))
sketch3.addConstraint(Sketcher.Constraint("Diameter", 0, Q("84 mm")))
sketch3.addConstraint(Sketcher.Constraint("Diameter", 1, Q("74 mm")))
sketch3.addConstraint(Sketcher.Constraint("Diameter", 3, Q("72 mm")))
sketch3.addConstraint(Sketcher.Constraint("Diameter", 5, Q("70 mm")))
sketch3.addConstraint(Sketcher.Constraint("Diameter", 7, Q("68 mm")))
sketch3.addConstraint(Sketcher.Constraint("Diameter", 9, Q("66 mm")))
sketch3.addConstraint(Sketcher.Constraint("Diameter", 11, Q("64 mm")))
sketch3.addConstraint(Sketcher.Constraint("DistanceY", 2, 3, -1, 1, Q("88.9 mm")))
sketch3.addConstraint(Sketcher.Constraint("DistanceY", 4, 3, -1, 1, Q("177.8 mm")))
sketch3.addConstraint(Sketcher.Constraint("DistanceY", 6, 3, -1, 1, Q("266.7 mm")))
sketch3.addConstraint(Sketcher.Constraint("DistanceY", 8, 3, -1, 1, Q("355.6 mm")))
sketch3.addConstraint(Sketcher.Constraint("DistanceY", 10, 3, -1, 1, Q("444.5 mm")))
sketch3.addConstraint(Sketcher.Constraint("DistanceX", 0, 3, -1, 1, Q("89.461 mm")))
sketch3.setExpression("Constraints[17]", "Params.sketch3_diameter")
sketch3.setExpression("Constraints[18]", "Params.sketch3_diameter2")
sketch3.setExpression("Constraints[19]", "Params.sketch3_diameter3")
sketch3.setExpression("Constraints[20]", "Params.sketch3_diameter4")
sketch3.setExpression("Constraints[21]", "Params.sketch3_diameter5")
pad3 = body3.newObject("PartDesign::Pad", "Pad002")
pad3.Profile = sketch3
pad3.setExpression("Length", "Params.pad3_length")
body4 = doc.addObject("PartDesign::Body", "Body003")

# Sketch on XY plane
sketch4 = body4.newObject("Sketcher::SketchObject", "Sketch003")
sketch4.AttachmentSupport = (doc.getObject("XY_Plane003"), [""])
sketch4.MapMode = "FlatFace"
sketch4.addGeometry(Part.Circle(App.Vector(0, 0, 0), App.Vector(0, 0, 1), 41), False)
sketch4.addGeometry(Part.Circle(App.Vector(0, 0, 0), App.Vector(0, 0, 1), 31), False)
sketch4.addConstraint(Sketcher.Constraint("Coincident", 0, 3, -1, 1))
sketch4.addConstraint(Sketcher.Constraint("Coincident", 1, 3, -1, 1))
sketch4.addConstraint(Sketcher.Constraint("Diameter", 0, Q("82 mm")))
sketch4.addConstraint(Sketcher.Constraint("Diameter", 1, Q("62 mm")))
sketch4.setExpression("Constraints[2]", "Params.sketch4_diameter")
sketch4.setExpression("Constraints[3]", "Params.sketch4_diameter2")
pad4 = body4.newObject("PartDesign::Pad", "Pad003")
pad4.Profile = sketch4
pad4.setExpression("Length", "Params.pad4_length")

# Sketch on XY plane
sketch5 = body4.newObject("Sketcher::SketchObject", "Sketch004")
sketch5.AttachmentSupport = (doc.getObject("XY_Plane003"), [""])
sketch5.MapMode = "FlatFace"
sketch5.addGeometry(Part.Circle(App.Vector(0, 0, 0), App.Vector(0, 0, 1), 31), False)
sketch5.addConstraint(Sketcher.Constraint("Coincident", 0, 3, -1, 1))
sketch5.addConstraint(Sketcher.Constraint("Diameter", 0, Q("62 mm")))
sketch5.setExpression("Constraints[1]", "Params.sketch5_diameter")
pad5 = body4.newObject("PartDesign::Pad", "Pad004")
pad5.Profile = sketch5
pad5.setExpression("Length", "Params.pad5_length")

# Sketch on XY plane
sketch6 = body4.newObject("Sketcher::SketchObject", "Sketch005")
sketch6.AttachmentSupport = (doc.getObject("XY_Plane003"), [""])
sketch6.MapMode = "FlatFace"
sketch6.AttachmentOffset = App.Placement(App.Vector(0, 0, 2), App.Rotation())
sketch6.addGeometry(Part.Circle(App.Vector(0, 0, 0), App.Vector(0, 0, 1), 33), False)
sketch6.addConstraint(Sketcher.Constraint("Coincident", 0, 3, -1, 1))
sketch6.addConstraint(Sketcher.Constraint("Diameter", 0, Q("66 mm")))
sketch6.setExpression("Constraints[1]", "Params.sketch6_diameter")
pad6 = body4.newObject("PartDesign::Pad", "Pad005")
pad6.Profile = sketch6
pad6.setExpression("Length", "Params.pad6_length")
body.Visibility = False
body3.Visibility = False

doc.recompute()
